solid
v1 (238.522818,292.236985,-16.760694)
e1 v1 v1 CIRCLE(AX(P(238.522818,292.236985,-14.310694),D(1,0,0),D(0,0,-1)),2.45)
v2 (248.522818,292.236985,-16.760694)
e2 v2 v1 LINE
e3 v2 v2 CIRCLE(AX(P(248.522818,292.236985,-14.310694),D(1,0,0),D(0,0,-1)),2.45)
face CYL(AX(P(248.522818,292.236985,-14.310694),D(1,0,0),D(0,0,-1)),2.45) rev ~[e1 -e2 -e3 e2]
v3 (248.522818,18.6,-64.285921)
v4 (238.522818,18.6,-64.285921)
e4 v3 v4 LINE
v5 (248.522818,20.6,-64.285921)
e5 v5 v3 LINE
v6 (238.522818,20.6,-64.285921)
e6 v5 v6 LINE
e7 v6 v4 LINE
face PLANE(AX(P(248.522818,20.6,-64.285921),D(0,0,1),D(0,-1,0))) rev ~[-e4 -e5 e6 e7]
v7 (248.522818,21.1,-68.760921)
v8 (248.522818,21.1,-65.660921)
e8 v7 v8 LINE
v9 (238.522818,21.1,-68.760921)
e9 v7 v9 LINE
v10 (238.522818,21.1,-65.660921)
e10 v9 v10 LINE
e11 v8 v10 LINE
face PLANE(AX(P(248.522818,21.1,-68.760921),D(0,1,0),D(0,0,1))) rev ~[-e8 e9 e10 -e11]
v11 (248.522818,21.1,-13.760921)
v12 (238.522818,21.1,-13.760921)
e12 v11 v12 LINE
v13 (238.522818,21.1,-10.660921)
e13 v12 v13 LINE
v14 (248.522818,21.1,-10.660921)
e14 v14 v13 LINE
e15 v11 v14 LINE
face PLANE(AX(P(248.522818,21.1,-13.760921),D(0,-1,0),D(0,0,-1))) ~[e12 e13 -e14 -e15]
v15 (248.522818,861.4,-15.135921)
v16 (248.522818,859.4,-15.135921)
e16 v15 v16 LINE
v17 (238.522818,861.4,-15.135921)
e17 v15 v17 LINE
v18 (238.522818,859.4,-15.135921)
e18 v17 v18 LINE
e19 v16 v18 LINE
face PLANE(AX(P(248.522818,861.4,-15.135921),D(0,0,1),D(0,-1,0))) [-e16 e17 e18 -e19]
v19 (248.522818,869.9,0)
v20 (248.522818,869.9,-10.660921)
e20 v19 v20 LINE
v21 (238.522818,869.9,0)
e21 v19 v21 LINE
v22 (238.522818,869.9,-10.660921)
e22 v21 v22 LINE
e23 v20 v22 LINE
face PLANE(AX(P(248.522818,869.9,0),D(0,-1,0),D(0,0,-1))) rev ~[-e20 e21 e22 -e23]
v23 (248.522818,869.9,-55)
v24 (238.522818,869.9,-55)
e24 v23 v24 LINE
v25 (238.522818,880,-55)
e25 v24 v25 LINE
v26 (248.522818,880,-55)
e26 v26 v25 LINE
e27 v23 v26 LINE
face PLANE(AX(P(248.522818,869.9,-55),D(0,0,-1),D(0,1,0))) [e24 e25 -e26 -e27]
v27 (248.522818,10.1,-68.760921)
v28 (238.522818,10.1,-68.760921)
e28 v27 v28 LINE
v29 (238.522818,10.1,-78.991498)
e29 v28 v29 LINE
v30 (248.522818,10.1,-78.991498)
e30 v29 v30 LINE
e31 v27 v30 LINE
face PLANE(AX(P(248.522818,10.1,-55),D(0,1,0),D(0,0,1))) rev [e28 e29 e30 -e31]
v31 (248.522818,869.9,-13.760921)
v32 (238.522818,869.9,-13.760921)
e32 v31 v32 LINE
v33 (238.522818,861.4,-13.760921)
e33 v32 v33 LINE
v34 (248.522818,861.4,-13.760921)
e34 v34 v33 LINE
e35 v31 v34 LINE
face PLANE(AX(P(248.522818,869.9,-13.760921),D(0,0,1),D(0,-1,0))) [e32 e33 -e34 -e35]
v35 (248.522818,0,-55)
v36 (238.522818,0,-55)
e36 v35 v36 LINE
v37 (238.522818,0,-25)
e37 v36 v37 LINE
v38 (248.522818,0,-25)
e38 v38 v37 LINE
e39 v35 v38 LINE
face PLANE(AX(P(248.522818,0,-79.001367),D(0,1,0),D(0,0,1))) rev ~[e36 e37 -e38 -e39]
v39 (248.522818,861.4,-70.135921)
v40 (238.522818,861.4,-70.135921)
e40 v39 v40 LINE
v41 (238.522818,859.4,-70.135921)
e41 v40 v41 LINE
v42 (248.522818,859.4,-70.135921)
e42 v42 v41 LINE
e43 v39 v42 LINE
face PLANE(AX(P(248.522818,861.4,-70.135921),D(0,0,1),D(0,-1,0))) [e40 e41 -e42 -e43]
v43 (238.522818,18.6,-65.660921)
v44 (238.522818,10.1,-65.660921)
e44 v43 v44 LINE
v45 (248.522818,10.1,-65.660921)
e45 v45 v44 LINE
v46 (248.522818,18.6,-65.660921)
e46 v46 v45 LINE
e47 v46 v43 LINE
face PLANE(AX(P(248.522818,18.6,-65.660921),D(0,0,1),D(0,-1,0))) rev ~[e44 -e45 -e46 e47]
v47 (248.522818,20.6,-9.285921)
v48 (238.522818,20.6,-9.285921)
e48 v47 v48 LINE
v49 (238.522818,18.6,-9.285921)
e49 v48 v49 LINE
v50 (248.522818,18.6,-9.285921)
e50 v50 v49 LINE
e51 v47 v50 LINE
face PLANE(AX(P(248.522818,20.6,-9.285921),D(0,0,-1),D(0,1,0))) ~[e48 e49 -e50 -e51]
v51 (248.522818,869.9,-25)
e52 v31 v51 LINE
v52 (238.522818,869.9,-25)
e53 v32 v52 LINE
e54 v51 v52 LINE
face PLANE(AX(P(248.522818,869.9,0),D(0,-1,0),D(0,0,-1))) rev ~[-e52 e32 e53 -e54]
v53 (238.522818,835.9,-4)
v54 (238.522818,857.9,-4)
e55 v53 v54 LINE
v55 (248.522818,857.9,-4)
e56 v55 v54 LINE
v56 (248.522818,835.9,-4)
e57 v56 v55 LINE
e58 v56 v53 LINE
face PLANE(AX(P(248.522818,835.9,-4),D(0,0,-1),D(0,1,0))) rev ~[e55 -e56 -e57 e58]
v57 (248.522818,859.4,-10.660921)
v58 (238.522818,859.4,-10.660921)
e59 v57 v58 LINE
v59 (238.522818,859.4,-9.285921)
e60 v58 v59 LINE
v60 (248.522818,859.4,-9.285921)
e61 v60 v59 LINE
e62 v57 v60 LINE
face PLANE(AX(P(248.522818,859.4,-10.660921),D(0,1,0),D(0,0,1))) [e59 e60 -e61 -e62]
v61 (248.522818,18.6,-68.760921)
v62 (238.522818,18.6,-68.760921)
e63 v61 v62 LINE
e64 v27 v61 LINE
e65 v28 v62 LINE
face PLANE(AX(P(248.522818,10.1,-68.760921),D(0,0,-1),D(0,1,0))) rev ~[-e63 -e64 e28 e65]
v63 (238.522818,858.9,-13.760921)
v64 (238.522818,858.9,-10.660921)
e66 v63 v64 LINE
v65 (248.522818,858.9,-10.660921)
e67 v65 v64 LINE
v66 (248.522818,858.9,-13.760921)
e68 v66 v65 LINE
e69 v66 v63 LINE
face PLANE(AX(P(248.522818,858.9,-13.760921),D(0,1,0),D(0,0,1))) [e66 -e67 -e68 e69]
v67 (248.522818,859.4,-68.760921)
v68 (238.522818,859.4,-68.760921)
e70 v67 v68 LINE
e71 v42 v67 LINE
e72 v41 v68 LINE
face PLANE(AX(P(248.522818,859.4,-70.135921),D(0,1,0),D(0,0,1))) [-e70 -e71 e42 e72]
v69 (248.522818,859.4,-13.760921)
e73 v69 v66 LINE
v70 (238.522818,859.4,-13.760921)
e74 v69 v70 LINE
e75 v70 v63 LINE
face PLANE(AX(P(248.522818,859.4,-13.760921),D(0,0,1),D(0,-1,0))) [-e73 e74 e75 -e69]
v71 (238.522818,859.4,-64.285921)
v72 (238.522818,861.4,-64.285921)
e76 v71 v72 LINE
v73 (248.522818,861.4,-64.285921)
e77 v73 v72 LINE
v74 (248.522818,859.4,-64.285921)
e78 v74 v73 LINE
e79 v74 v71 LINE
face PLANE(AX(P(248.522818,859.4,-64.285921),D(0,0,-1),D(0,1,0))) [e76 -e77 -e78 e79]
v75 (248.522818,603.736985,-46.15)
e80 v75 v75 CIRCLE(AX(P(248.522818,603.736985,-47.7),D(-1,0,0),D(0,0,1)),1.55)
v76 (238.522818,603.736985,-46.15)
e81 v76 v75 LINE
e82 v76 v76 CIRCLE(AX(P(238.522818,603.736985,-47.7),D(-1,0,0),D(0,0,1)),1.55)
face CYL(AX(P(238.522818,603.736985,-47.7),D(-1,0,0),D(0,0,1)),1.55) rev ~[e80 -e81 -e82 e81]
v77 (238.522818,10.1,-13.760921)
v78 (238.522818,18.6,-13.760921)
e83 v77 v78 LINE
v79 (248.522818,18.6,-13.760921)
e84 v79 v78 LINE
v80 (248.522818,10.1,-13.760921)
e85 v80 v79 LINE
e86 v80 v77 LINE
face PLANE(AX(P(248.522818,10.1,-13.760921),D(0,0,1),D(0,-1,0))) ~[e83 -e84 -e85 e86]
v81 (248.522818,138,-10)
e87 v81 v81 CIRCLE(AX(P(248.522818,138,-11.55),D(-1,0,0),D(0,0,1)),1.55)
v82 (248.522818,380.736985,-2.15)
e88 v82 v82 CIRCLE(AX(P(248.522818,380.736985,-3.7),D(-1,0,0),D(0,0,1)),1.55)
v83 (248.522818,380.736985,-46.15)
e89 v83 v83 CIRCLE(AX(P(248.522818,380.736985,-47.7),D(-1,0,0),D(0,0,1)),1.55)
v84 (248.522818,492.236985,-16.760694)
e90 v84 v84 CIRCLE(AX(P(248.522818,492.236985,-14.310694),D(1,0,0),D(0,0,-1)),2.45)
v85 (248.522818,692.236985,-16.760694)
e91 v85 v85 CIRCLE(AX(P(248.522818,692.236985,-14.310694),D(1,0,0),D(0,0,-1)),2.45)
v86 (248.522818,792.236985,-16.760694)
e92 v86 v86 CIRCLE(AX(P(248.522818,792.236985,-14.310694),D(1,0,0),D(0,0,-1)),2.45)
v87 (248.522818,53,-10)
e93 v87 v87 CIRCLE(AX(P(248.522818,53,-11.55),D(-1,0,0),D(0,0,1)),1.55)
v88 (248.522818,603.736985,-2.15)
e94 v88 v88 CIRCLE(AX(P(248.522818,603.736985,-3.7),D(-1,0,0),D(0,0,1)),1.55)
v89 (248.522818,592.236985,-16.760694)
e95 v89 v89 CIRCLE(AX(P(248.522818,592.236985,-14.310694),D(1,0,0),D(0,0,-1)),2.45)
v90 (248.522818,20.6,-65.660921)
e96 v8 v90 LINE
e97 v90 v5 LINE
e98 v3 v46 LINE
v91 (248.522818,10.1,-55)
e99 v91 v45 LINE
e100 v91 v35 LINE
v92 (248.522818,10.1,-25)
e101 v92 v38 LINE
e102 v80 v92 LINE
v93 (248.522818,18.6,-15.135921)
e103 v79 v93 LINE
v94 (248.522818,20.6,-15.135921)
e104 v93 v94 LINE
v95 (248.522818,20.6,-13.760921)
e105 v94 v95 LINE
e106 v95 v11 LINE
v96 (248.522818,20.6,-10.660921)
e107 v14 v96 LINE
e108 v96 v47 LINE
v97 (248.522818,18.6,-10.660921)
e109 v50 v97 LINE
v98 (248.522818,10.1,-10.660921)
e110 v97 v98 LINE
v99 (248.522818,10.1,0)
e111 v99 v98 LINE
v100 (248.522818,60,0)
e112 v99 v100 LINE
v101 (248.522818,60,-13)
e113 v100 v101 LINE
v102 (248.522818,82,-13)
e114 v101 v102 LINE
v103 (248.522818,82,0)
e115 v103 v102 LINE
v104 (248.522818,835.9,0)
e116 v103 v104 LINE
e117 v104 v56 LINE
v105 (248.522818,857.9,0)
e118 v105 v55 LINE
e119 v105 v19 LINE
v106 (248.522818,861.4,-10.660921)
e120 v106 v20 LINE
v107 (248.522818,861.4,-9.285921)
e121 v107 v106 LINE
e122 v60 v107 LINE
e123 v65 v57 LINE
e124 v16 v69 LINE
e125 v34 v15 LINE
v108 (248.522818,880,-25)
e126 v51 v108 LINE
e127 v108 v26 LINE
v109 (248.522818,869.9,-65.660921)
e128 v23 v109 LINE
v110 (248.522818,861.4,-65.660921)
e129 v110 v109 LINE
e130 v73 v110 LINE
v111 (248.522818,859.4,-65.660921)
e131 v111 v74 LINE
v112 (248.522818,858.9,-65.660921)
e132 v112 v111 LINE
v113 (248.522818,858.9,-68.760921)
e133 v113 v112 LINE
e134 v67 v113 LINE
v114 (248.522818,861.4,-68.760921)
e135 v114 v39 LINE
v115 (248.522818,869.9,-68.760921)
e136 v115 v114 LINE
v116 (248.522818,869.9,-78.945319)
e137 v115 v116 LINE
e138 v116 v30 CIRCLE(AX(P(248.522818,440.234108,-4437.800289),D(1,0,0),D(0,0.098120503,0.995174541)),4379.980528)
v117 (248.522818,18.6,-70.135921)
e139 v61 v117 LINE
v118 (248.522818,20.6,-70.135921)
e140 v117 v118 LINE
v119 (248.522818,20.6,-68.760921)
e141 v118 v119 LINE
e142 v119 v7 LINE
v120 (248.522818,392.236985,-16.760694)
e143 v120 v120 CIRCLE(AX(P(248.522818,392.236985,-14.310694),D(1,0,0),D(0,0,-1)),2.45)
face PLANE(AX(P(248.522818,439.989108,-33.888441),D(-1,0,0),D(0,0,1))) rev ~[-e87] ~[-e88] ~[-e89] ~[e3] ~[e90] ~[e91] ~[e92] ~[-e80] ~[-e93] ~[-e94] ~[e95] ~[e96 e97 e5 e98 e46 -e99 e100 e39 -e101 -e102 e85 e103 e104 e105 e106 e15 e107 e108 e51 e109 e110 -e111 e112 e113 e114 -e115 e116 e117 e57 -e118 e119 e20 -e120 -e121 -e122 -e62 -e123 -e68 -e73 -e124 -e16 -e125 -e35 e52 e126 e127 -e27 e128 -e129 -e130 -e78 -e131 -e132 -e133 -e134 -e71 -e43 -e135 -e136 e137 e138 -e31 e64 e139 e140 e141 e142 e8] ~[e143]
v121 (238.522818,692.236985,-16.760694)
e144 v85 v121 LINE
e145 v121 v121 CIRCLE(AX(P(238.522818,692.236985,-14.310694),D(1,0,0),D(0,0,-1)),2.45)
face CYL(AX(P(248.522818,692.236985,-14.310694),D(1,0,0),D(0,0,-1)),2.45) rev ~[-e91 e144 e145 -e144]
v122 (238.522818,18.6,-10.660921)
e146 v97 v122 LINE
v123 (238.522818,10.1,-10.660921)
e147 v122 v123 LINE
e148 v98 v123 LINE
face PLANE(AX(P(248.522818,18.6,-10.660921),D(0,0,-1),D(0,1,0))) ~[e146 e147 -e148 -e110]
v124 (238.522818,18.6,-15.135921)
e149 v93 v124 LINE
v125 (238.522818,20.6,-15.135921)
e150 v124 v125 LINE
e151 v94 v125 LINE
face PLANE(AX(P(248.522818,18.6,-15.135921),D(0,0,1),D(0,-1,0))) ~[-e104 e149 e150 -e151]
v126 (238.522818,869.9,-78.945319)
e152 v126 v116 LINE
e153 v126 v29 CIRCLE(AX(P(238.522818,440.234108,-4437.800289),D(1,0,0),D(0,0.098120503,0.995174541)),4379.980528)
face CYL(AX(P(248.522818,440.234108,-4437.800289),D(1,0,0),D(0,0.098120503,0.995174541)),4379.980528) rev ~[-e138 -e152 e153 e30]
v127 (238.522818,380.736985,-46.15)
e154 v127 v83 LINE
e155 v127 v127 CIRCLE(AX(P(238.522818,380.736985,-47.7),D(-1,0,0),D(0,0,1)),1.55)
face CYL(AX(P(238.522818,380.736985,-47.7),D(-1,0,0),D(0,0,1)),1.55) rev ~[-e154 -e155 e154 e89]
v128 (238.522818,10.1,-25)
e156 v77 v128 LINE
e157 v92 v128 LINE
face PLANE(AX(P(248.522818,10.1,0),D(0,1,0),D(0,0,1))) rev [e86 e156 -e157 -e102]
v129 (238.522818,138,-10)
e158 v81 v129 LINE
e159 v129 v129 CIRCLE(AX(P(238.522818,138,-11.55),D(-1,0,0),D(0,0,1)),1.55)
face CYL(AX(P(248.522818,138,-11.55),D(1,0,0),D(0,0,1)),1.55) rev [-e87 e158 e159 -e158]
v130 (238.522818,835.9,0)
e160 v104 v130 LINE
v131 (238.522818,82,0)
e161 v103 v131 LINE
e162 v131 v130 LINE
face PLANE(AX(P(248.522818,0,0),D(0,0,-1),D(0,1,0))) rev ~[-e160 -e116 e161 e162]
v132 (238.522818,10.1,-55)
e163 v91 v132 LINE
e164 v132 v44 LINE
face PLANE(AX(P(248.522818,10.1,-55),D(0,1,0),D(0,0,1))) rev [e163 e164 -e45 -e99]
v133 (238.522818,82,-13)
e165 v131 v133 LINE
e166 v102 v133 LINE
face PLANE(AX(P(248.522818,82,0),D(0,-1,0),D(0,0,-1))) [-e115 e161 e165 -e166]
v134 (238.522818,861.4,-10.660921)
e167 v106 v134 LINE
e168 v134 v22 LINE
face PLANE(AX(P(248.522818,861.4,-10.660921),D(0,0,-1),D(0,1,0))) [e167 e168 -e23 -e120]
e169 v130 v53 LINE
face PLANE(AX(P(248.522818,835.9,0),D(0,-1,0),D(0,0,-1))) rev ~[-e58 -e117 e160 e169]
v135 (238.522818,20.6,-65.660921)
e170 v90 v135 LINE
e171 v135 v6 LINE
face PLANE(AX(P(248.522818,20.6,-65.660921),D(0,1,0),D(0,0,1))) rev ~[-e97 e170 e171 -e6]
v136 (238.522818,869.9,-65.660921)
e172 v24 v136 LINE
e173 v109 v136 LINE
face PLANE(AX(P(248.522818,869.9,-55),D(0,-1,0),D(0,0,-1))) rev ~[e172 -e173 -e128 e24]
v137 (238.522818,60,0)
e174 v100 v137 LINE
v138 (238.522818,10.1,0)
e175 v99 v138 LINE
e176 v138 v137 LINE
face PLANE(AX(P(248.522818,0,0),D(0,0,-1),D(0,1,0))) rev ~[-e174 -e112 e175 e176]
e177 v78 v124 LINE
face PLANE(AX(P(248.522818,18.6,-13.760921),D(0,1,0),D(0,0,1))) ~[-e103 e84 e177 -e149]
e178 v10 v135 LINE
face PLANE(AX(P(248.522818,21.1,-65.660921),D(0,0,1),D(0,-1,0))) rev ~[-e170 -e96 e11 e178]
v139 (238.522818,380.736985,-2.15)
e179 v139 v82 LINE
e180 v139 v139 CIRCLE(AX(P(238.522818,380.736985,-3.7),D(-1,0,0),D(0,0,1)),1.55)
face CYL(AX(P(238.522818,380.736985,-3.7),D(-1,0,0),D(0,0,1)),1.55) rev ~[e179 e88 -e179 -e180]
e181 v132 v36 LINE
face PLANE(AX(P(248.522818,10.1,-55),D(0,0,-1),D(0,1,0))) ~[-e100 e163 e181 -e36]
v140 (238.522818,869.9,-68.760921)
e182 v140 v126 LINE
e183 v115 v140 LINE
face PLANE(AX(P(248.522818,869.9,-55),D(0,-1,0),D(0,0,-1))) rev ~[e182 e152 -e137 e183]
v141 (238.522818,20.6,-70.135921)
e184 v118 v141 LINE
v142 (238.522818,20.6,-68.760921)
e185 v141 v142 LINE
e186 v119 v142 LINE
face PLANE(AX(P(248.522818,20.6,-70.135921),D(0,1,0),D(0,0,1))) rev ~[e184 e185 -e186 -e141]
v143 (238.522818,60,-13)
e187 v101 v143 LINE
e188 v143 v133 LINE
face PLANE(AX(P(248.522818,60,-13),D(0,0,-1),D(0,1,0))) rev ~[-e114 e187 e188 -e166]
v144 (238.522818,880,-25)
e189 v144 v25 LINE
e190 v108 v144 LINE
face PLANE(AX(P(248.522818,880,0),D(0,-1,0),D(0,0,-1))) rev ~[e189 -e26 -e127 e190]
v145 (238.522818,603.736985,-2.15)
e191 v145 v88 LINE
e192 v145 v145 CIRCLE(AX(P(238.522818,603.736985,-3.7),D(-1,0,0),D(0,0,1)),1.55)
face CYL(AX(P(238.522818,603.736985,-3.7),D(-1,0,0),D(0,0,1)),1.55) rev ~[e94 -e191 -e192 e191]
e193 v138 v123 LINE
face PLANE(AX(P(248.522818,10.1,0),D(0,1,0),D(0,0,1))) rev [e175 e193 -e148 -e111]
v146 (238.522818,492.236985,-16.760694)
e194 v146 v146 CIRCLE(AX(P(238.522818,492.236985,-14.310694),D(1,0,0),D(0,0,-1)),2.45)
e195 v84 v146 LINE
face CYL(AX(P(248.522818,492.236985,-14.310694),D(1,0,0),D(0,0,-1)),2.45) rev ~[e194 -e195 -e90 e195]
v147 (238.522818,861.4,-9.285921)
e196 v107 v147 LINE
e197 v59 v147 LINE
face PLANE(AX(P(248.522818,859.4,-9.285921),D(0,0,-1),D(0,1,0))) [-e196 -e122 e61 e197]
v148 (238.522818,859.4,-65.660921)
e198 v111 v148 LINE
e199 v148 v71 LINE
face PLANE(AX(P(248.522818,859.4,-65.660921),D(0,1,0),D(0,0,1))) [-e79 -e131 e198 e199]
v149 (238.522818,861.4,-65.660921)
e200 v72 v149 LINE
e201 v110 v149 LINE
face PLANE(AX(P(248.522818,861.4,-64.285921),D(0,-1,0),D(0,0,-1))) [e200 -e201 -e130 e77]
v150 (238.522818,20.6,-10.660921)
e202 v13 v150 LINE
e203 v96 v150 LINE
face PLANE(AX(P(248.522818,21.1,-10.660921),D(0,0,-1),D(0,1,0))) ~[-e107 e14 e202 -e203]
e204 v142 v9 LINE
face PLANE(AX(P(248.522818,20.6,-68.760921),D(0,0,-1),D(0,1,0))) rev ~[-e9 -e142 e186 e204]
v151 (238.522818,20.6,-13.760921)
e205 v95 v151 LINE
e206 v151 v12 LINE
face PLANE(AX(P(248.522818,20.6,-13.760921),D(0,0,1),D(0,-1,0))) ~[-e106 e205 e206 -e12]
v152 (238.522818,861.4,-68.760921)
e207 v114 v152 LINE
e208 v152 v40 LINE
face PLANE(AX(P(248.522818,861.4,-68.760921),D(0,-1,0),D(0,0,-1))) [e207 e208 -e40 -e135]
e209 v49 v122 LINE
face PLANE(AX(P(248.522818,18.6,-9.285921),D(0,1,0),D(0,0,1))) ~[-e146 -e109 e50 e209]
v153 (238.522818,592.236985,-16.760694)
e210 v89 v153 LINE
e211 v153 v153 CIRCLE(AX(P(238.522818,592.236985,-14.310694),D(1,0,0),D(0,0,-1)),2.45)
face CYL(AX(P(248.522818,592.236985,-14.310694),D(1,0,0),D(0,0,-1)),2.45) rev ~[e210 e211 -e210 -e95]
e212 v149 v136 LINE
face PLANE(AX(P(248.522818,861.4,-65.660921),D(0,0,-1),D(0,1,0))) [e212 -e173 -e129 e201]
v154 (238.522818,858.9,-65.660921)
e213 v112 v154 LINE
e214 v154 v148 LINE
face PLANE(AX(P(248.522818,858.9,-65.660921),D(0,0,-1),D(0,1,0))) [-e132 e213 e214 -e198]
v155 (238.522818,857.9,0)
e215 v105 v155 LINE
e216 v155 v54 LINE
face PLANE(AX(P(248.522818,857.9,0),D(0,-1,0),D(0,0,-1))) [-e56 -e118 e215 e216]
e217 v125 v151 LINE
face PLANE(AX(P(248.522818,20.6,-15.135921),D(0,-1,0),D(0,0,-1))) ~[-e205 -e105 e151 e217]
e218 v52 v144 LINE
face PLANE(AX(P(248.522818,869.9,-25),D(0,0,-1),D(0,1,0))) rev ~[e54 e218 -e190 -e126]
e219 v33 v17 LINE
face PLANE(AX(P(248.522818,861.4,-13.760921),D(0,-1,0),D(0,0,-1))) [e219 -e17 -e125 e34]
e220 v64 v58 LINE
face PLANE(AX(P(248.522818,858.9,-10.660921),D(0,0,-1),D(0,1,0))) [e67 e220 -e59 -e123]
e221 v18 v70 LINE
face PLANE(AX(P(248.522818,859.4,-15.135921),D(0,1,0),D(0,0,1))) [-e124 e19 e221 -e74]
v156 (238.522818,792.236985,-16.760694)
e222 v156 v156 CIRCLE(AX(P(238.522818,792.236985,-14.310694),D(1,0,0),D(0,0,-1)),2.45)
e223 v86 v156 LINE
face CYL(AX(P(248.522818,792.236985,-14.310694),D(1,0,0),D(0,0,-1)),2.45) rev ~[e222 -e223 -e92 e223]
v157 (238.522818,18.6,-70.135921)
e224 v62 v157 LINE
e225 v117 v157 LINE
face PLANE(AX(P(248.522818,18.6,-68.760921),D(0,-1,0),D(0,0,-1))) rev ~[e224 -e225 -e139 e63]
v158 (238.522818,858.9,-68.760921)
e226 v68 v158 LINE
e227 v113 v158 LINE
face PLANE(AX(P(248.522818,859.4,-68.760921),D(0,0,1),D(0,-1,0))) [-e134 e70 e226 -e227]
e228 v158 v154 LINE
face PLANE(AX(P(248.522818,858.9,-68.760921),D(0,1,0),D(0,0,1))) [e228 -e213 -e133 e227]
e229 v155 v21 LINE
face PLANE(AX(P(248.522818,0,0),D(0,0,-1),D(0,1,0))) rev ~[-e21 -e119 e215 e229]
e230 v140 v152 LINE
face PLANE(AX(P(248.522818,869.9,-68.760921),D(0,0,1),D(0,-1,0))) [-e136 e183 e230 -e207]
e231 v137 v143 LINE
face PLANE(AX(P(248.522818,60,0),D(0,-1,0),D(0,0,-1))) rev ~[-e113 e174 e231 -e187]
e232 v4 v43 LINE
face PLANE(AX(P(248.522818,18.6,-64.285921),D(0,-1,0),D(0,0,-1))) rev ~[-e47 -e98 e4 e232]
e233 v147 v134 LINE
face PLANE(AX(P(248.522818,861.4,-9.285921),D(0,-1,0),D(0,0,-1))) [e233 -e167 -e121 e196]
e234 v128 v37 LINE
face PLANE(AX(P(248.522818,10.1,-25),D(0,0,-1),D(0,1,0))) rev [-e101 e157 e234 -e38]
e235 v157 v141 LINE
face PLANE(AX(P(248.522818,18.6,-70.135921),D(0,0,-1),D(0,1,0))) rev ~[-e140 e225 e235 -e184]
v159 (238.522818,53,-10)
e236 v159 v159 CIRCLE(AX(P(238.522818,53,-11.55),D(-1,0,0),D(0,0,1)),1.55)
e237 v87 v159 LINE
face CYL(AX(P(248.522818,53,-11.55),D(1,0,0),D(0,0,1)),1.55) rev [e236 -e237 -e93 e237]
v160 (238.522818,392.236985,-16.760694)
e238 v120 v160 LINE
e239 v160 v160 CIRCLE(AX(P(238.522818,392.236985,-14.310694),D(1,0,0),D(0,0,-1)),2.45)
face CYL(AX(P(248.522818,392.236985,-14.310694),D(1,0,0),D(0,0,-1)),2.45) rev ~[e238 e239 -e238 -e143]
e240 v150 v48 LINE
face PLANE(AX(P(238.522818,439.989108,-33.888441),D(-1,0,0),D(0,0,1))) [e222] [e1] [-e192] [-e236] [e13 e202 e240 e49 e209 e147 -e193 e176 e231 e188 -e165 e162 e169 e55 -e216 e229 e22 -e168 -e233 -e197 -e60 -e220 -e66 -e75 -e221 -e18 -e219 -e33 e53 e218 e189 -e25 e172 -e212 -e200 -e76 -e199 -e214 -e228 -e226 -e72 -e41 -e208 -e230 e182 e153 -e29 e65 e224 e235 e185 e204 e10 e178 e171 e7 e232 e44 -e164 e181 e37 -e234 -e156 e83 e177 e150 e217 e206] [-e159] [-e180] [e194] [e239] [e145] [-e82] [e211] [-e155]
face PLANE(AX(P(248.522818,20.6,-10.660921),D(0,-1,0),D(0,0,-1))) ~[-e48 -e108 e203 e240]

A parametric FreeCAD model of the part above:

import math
import FreeCAD as App
import Part
import Sketcher
from FreeCAD import Vector

doc = App.newDocument("Part")
params = doc.addObject("Spreadsheet::Sheet", "Params")
for row, (alias, value) in enumerate([
    ("sketch1_width", "880 mm"),
    ("sketch1_width2", "10 mm"),
    ("pad1_length", "10 mm"),
    ("sketch2_height", "30 mm"),
    ("sketch2_height2", "25 mm"),
    ("sketch2_width", "10.1 mm"),
    ("pocket1_length", "10 mm"),
    ("sketch3_width", "2 mm"),
    ("sketch3_width2", "8.5 mm"),
    ("sketch3_width3", "0.5 mm"),
    ("sketch3_height", "3.1 mm"),
    ("pocket2_length", "10 mm"),
    ("linearpattern_pitch", "55 mm"),
    ("sketch4_diameter", "3.1 mm"),
    ("pocket3_length", "10 mm"),
    ("sketch5_diameter", "4.9 mm"),
    ("pocket4_length", "10 mm"),
    ("linearpattern2_pitch", "100 mm"),
    ("sketch6_width", "22 mm"),
    ("sketch6_height", "13 mm"),
    ("pocket5_length", "10 mm"),
    ("sketch7_width", "22 mm"),
    ("sketch7_height", "4 mm"),
    ("pocket6_length", "10 mm"),
    ("sketch8_width", "2 mm"),
    ("sketch8_width2", "8.5 mm"),
    ("sketch8_width3", "0.5 mm"),
    ("sketch8_height", "3.1 mm"),
    ("pocket7_length", "10 mm"),
    ("sketch9_diameter", "3.1 mm"),
    ("pocket8_length", "10 mm"),
    ("linearpattern3_pitch", "223 mm"),
], start=1):
    params.set(f"A{row}", alias)
    params.set(f"B{row}", "=" + value)
    params.setAlias(f"B{row}", alias)

body = doc.addObject("PartDesign::Body", "Body")

sketch1 = body.newObject("Sketcher::SketchObject", "Sketch")
sketch1.AttachmentSupport = (doc.getObject("YZ_Plane"), [""])
sketch1.MapMode = "FlatFace"
sketch1.AttachmentOffset = App.Placement(Vector(0, 0, 248.522818), App.Rotation())
sketch1.addGeometry(Part.LineSegment(Vector(0, -79, 0), Vector(0, 0, 0)), False)
sketch1.addGeometry(Part.LineSegment(Vector(0, 0, 0), Vector(880, 0, 0)), False)
sketch1.addGeometry(Part.LineSegment(Vector(880, 0, 0), Vector(880, -79, 0)), False)
sketch1.addGeometry(Part.LineSegment(Vector(880, -79, 0), Vector(870, -79, 0)), False)
sketch1.addGeometry(Part.ArcOfCircle(Part.Circle(Vector(440, -4438, 0), Vector(0, 0, 1), 4380), math.radians(84.37), math.radians(95.64)), False)
sketch1.addGeometry(Part.LineSegment(Vector(10, -79, 0), Vector(0, -79, 0)), False)
sketch1.addConstraint(Sketcher.Constraint("Coincident", 0, 2, 1, 1))
sketch1.addConstraint(Sketcher.Constraint("Coincident", 1, 2, 2, 1))
sketch1.addConstraint(Sketcher.Constraint("Coincident", 2, 2, 3, 1))
sketch1.addConstraint(Sketcher.Constraint("Coincident", 3, 2, 4, 1))
sketch1.addConstraint(Sketcher.Constraint("Coincident", 4, 2, 5, 1))
sketch1.addConstraint(Sketcher.Constraint("Coincident", 5, 2, 0, 1))
sketch1.addConstraint(Sketcher.Constraint("Vertical", 0))
sketch1.addConstraint(Sketcher.Constraint("Horizontal", 1))
sketch1.addConstraint(Sketcher.Constraint("Vertical", 2))
sketch1.addConstraint(Sketcher.Constraint("Horizontal", 3))
sketch1.addConstraint(Sketcher.Constraint("Horizontal", 5))
sketch1.addConstraint(Sketcher.Constraint("Coincident", 0, 2, -1, 1))
sketch1.addConstraint(Sketcher.Constraint("Equal", 3, 5))
sketch1.addConstraint(Sketcher.Constraint("DistanceX", 1, 1, 1, 2, 880.0))
sketch1.addConstraint(Sketcher.Constraint("DistanceX", 3, 2, 3, 1, 10.0))
sketch1.addConstraint(Sketcher.Constraint("Radius", 4, 4379.980528))
sketch1.addConstraint(Sketcher.Constraint("DistanceY", 0, 1, 0, 2, 79.001367))
sketch1.addConstraint(Sketcher.Constraint("DistanceY", 2, 2, 2, 1, 78.955177))
sketch1.setExpression("Constraints[13]", "Params.sketch1_width")
sketch1.setExpression("Constraints[14]", "Params.sketch1_width2")
pad1 = body.newObject("PartDesign::Pad", "Pad")
pad1.Profile = sketch1
pad1.setExpression("Length", "Params.pad1_length")
pad1.Reversed = True

sketch2 = body.newObject("Sketcher::SketchObject", "Sketch001")
sketch2.AttachmentSupport = (doc.getObject("YZ_Plane"), [""])
sketch2.MapMode = "FlatFace"
sketch2.AttachmentOffset = App.Placement(Vector(0, 0, 248.522818), App.Rotation())
sketch2.addGeometry(Part.LineSegment(Vector(880, -55, 0), Vector(870, -55, 0)), False)
sketch2.addGeometry(Part.LineSegment(Vector(870, -55, 0), Vector(870, -85, 0)), False)
sketch2.addGeometry(Part.LineSegment(Vector(870, -85, 0), Vector(880, -85, 0)), False)
sketch2.addGeometry(Part.LineSegment(Vector(880, -85, 0), Vector(880, -55, 0)), False)
sketch2.addGeometry(Part.LineSegment(Vector(880, 0, 0), Vector(870, 0, 0)), False)
sketch2.addGeometry(Part.LineSegment(Vector(870, 0, 0), Vector(870, -25, 0)), False)
sketch2.addGeometry(Part.LineSegment(Vector(870, -25, 0), Vector(880, -25, 0)), False)
sketch2.addGeometry(Part.LineSegment(Vector(880, -25, 0), Vector(880, 0, 0)), False)
sketch2.addConstraint(Sketcher.Constraint("Coincident", 0, 2, 1, 1))
sketch2.addConstraint(Sketcher.Constraint("Coincident", 1, 2, 2, 1))
sketch2.addConstraint(Sketcher.Constraint("Coincident", 2, 2, 3, 1))
sketch2.addConstraint(Sketcher.Constraint("Coincident", 3, 2, 0, 1))
sketch2.addConstraint(Sketcher.Constraint("Coincident", 4, 2, 5, 1))
sketch2.addConstraint(Sketcher.Constraint("Coincident", 5, 2, 6, 1))
sketch2.addConstraint(Sketcher.Constraint("Coincident", 6, 2, 7, 1))
sketch2.addConstraint(Sketcher.Constraint("Coincident", 7, 2, 4, 1))
sketch2.addConstraint(Sketcher.Constraint("Horizontal", 0))
sketch2.addConstraint(Sketcher.Constraint("Vertical", 1))
sketch2.addConstraint(Sketcher.Constraint("Horizontal", 2))
sketch2.addConstraint(Sketcher.Constraint("Vertical", 3))
sketch2.addConstraint(Sketcher.Constraint("Horizontal", 4))
sketch2.addConstraint(Sketcher.Constraint("Vertical", 5))
sketch2.addConstraint(Sketcher.Constraint("Horizontal", 6))
sketch2.addConstraint(Sketcher.Constraint("Vertical", 7))
sketch2.addConstraint(Sketcher.Constraint("PointOnObject", 4, 2, -1))
sketch2.addConstraint(Sketcher.Constraint("Vertical", 1, 2, 4, 2))
sketch2.addConstraint(Sketcher.Constraint("Vertical", 3, 2, 6, 2))
sketch2.addConstraint(Sketcher.Constraint("DistanceY", 1, 2, 1, 1, 30.0))
sketch2.addConstraint(Sketcher.Constraint("DistanceY", 5, 2, 5, 1, 25.0))
sketch2.addConstraint(Sketcher.Constraint("DistanceX", 0, 2, 0, 1, 10.1))
sketch2.addConstraint(Sketcher.Constraint("DistanceY", 0, 2, -1, 1, 55.0))
sketch2.addConstraint(Sketcher.Constraint("DistanceX", -1, 1, 2, 2, 880.0))
sketch2.setExpression("Constraints[19]", "Params.sketch2_height")
sketch2.setExpression("Constraints[20]", "Params.sketch2_height2")
sketch2.setExpression("Constraints[21]", "Params.sketch2_width")
pocket1 = body.newObject("PartDesign::Pocket", "Pocket")
pocket1.Profile = sketch2
pocket1.setExpression("Length", "Params.pocket1_length")

sketch3 = body.newObject("Sketcher::SketchObject", "Sketch002")
sketch3.AttachmentSupport = (doc.getObject("YZ_Plane"), [""])
sketch3.MapMode = "FlatFace"
sketch3.AttachmentOffset = App.Placement(Vector(0, 0, 248.522818), App.Rotation())
sketch3.addGeometry(Part.LineSegment(Vector(869.9, -13.8, 0), Vector(869.9, -10.7, 0)), False)
sketch3.addGeometry(Part.LineSegment(Vector(869.9, -10.7, 0), Vector(861.4, -10.7, 0)), False)
sketch3.addGeometry(Part.LineSegment(Vector(861.4, -10.7, 0), Vector(861.4, -9.3, 0)), False)
sketch3.addGeometry(Part.LineSegment(Vector(861.4, -9.3, 0), Vector(859.4, -9.3, 0)), False)
sketch3.addGeometry(Part.LineSegment(Vector(859.4, -9.3, 0), Vector(859.4, -10.7, 0)), False)
sketch3.addGeometry(Part.LineSegment(Vector(859.4, -10.7, 0), Vector(858.9, -10.7, 0)), False)
sketch3.addGeometry(Part.LineSegment(Vector(858.9, -10.7, 0), Vector(858.9, -13.8, 0)), False)
sketch3.addGeometry(Part.LineSegment(Vector(858.9, -13.8, 0), Vector(859.4, -13.8, 0)), False)
sketch3.addGeometry(Part.LineSegment(Vector(859.4, -13.8, 0), Vector(859.4, -15.1, 0)), False)
sketch3.addGeometry(Part.LineSegment(Vector(859.4, -15.1, 0), Vector(861.4, -15.1, 0)), False)
sketch3.addGeometry(Part.LineSegment(Vector(861.4, -15.1, 0), Vector(861.4, -13.8, 0)), False)
sketch3.addGeometry(Part.LineSegment(Vector(861.4, -13.8, 0), Vector(869.9, -13.8, 0)), False)
sketch3.addConstraint(Sketcher.Constraint("Coincident", 0, 2, 1, 1))
sketch3.addConstraint(Sketcher.Constraint("Coincident", 1, 2, 2, 1))
sketch3.addConstraint(Sketcher.Constraint("Coincident", 2, 2, 3, 1))
sketch3.addConstraint(Sketcher.Constraint("Coincident", 3, 2, 4, 1))
sketch3.addConstraint(Sketcher.Constraint("Coincident", 4, 2, 5, 1))
sketch3.addConstraint(Sketcher.Constraint("Coincident", 5, 2, 6, 1))
sketch3.addConstraint(Sketcher.Constraint("Coincident", 6, 2, 7, 1))
sketch3.addConstraint(Sketcher.Constraint("Coincident", 7, 2, 8, 1))
sketch3.addConstraint(Sketcher.Constraint("Coincident", 8, 2, 9, 1))
sketch3.addConstraint(Sketcher.Constraint("Coincident", 9, 2, 10, 1))
sketch3.addConstraint(Sketcher.Constraint("Coincident", 10, 2, 11, 1))
sketch3.addConstraint(Sketcher.Constraint("Coincident", 11, 2, 0, 1))
sketch3.addConstraint(Sketcher.Constraint("Vertical", 0))
sketch3.addConstraint(Sketcher.Constraint("Horizontal", 1))
sketch3.addConstraint(Sketcher.Constraint("Vertical", 2))
sketch3.addConstraint(Sketcher.Constraint("Horizontal", 3))
sketch3.addConstraint(Sketcher.Constraint("Vertical", 4))
sketch3.addConstraint(Sketcher.Constraint("Horizontal", 5))
sketch3.addConstraint(Sketcher.Constraint("Vertical", 6))
sketch3.addConstraint(Sketcher.Constraint("Horizontal", 7))
sketch3.addConstraint(Sketcher.Constraint("Vertical", 8))
sketch3.addConstraint(Sketcher.Constraint("Horizontal", 9))
sketch3.addConstraint(Sketcher.Constraint("Vertical", 10))
sketch3.addConstraint(Sketcher.Constraint("Horizontal", 11))
sketch3.addConstraint(Sketcher.Constraint("Horizontal", 1, 2, 4, 2))
sketch3.addConstraint(Sketcher.Constraint("Horizontal", 7, 2, 10, 2))
sketch3.addConstraint(Sketcher.Constraint("Vertical", 4, 2, 7, 2))
sketch3.addConstraint(Sketcher.Constraint("Vertical", 2, 2, 9, 2))
sketch3.addConstraint(Sketcher.Constraint("Equal", 4, 8))
sketch3.addConstraint(Sketcher.Constraint("DistanceX", 3, 2, 3, 1, 2.0))
sketch3.addConstraint(Sketcher.Constraint("DistanceX", 1, 2, 1, 1, 8.5))
sketch3.addConstraint(Sketcher.Constraint("DistanceX", 5, 2, 5, 1, 0.5))
sketch3.addConstraint(Sketcher.Constraint("DistanceY", 0, 1, 0, 2, 3.1))
sketch3.addConstraint(Sketcher.Constraint("DistanceX", -1, 1, 0, 2, 869.9))
sketch3.addConstraint(Sketcher.Constraint("DistanceY", 2, 1, 2, 2, 1.375))
sketch3.addConstraint(Sketcher.Constraint("DistanceY", 0, 2, -1, 1, 10.660921))
sketch3.setExpression("Constraints[29]", "Params.sketch3_width")
sketch3.setExpression("Constraints[30]", "Params.sketch3_width2")
sketch3.setExpression("Constraints[31]", "Params.sketch3_width3")
sketch3.setExpression("Constraints[32]", "Params.sketch3_height")
pocket2 = body.newObject("PartDesign::Pocket", "Pocket001")
pocket2.Profile = sketch3
pocket2.setExpression("Length", "Params.pocket2_length")
doc.recompute()

linearpattern = body.newObject("PartDesign::LinearPattern", "LinearPattern")
linearpattern.Originals = [pocket2]
linearpattern.Direction = (doc.getObject("Z_Axis"), [""])
linearpattern.Mode = "offset"
linearpattern.setExpression("Offset", "Params.linearpattern_pitch")
linearpattern.Occurrences = 2
linearpattern.Reversed = True
body.Tip = linearpattern

sketch4 = body.newObject("Sketcher::SketchObject", "Sketch003")
sketch4.AttachmentSupport = (doc.getObject("YZ_Plane"), [""])
sketch4.MapMode = "FlatFace"
sketch4.AttachmentOffset = App.Placement(Vector(0, 0, 248.522818), App.Rotation())
sketch4.addGeometry(Part.Circle(Vector(53, -11.6, 0), Vector(0, 0, 1), 1.6), False)
sketch4.addGeometry(Part.Circle(Vector(138, -11.6, 0), Vector(0, 0, 1), 1.6), False)
sketch4.addConstraint(Sketcher.Constraint("Equal", 0, 1))
sketch4.addConstraint(Sketcher.Constraint("Horizontal", 0, 3, 1, 3))
sketch4.addConstraint(Sketcher.Constraint("Diameter", 0, 3.1))
sketch4.addConstraint(Sketcher.Constraint("DistanceX", -1, 1, 0, 3, 53.0))
sketch4.addConstraint(Sketcher.Constraint("DistanceX", -1, 1, 1, 3, 138.0))
sketch4.addConstraint(Sketcher.Constraint("DistanceY", 0, 3, -1, 1, 11.55))
sketch4.setExpression("Constraints[2]", "Params.sketch4_diameter")
pocket3 = body.newObject("PartDesign::Pocket", "Pocket002")
pocket3.Profile = sketch4
pocket3.setExpression("Length", "Params.pocket3_length")

sketch5 = body.newObject("Sketcher::SketchObject", "Sketch004")
sketch5.AttachmentSupport = (doc.getObject("YZ_Plane"), [""])
sketch5.MapMode = "FlatFace"
sketch5.AttachmentOffset = App.Placement(Vector(0, 0, 248.522818), App.Rotation())
sketch5.addGeometry(Part.Circle(Vector(792.2, -14.3, 0), Vector(0, 0, 1), 2.5), False)
sketch5.addConstraint(Sketcher.Constraint("Diameter", 0, 4.9))
sketch5.addConstraint(Sketcher.Constraint("DistanceX", -1, 1, 0, 3, 792.236985))
sketch5.addConstraint(Sketcher.Constraint("DistanceY", 0, 3, -1, 1, 14.310694))
sketch5.setExpression("Constraints[0]", "Params.sketch5_diameter")
pocket4 = body.newObject("PartDesign::Pocket", "Pocket003")
pocket4.Profile = sketch5
pocket4.setExpression("Length", "Params.pocket4_length")
doc.recompute()

linearpattern2 = body.newObject("PartDesign::LinearPattern", "LinearPattern001")
linearpattern2.Originals = [pocket4]
linearpattern2.Direction = (doc.getObject("Y_Axis"), [""])
linearpattern2.Mode = "offset"
linearpattern2.setExpression("Offset", "Params.linearpattern2_pitch")
linearpattern2.Occurrences = 6
linearpattern2.Reversed = True
body.Tip = linearpattern2

sketch6 = body.newObject("Sketcher::SketchObject", "Sketch005")
sketch6.AttachmentSupport = (doc.getObject("YZ_Plane"), [""])
sketch6.MapMode = "FlatFace"
sketch6.AttachmentOffset = App.Placement(Vector(0, 0, 248.522818), App.Rotation())
sketch6.addGeometry(Part.LineSegment(Vector(82, 0, 0), Vector(60, 0, 0)), False)
sketch6.addGeometry(Part.LineSegment(Vector(60, 0, 0), Vector(60, -13, 0)), False)
sketch6.addGeometry(Part.LineSegment(Vector(60, -13, 0), Vector(82, -13, 0)), False)
sketch6.addGeometry(Part.LineSegment(Vector(82, -13, 0), Vector(82, 0, 0)), False)
sketch6.addConstraint(Sketcher.Constraint("Coincident", 0, 2, 1, 1))
sketch6.addConstraint(Sketcher.Constraint("Coincident", 1, 2, 2, 1))
sketch6.addConstraint(Sketcher.Constraint("Coincident", 2, 2, 3, 1))
sketch6.addConstraint(Sketcher.Constraint("Coincident", 3, 2, 0, 1))
sketch6.addConstraint(Sketcher.Constraint("Horizontal", 0))
sketch6.addConstraint(Sketcher.Constraint("Vertical", 1))
sketch6.addConstraint(Sketcher.Constraint("Horizontal", 2))
sketch6.addConstraint(Sketcher.Constraint("Vertical", 3))
sketch6.addConstraint(Sketcher.Constraint("PointOnObject", 0, 2, -1))
sketch6.addConstraint(Sketcher.Constraint("DistanceX", 0, 2, 0, 1, 22.0))
sketch6.addConstraint(Sketcher.Constraint("DistanceY", 1, 2, 1, 1, 13.0))
sketch6.addConstraint(Sketcher.Constraint("DistanceX", -1, 1, 0, 2, 60.0))
sketch6.setExpression("Constraints[9]", "Params.sketch6_width")
sketch6.setExpression("Constraints[10]", "Params.sketch6_height")
pocket5 = body.newObject("PartDesign::Pocket", "Pocket004")
pocket5.Profile = sketch6
pocket5.setExpression("Length", "Params.pocket5_length")

sketch7 = body.newObject("Sketcher::SketchObject", "Sketch006")
sketch7.AttachmentSupport = (doc.getObject("YZ_Plane"), [""])
sketch7.MapMode = "FlatFace"
sketch7.AttachmentOffset = App.Placement(Vector(0, 0, 248.522818), App.Rotation())
sketch7.addGeometry(Part.LineSegment(Vector(857.9, 0, 0), Vector(835.9, 0, 0)), False)
sketch7.addGeometry(Part.LineSegment(Vector(835.9, 0, 0), Vector(835.9, -4, 0)), False)
sketch7.addGeometry(Part.LineSegment(Vector(835.9, -4, 0), Vector(857.9, -4, 0)), False)
sketch7.addGeometry(Part.LineSegment(Vector(857.9, -4, 0), Vector(857.9, 0, 0)), False)
sketch7.addConstraint(Sketcher.Constraint("Coincident", 0, 2, 1, 1))
sketch7.addConstraint(Sketcher.Constraint("Coincident", 1, 2, 2, 1))
sketch7.addConstraint(Sketcher.Constraint("Coincident", 2, 2, 3, 1))
sketch7.addConstraint(Sketcher.Constraint("Coincident", 3, 2, 0, 1))
sketch7.addConstraint(Sketcher.Constraint("Horizontal", 0))
sketch7.addConstraint(Sketcher.Constraint("Vertical", 1))
sketch7.addConstraint(Sketcher.Constraint("Horizontal", 2))
sketch7.addConstraint(Sketcher.Constraint("Vertical", 3))
sketch7.addConstraint(Sketcher.Constraint("PointOnObject", 0, 2, -1))
sketch7.addConstraint(Sketcher.Constraint("DistanceX", 0, 2, 0, 1, 22.0))
sketch7.addConstraint(Sketcher.Constraint("DistanceY", 1, 2, 1, 1, 4.0))
sketch7.addConstraint(Sketcher.Constraint("DistanceX", -1, 1, 0, 2, 835.9))
sketch7.setExpression("Constraints[9]", "Params.sketch7_width")
sketch7.setExpression("Constraints[10]", "Params.sketch7_height")
pocket6 = body.newObject("PartDesign::Pocket", "Pocket005")
pocket6.Profile = sketch7
pocket6.setExpression("Length", "Params.pocket6_length")
doc.recompute()

datumplane = body.newObject("PartDesign::Plane", "DatumPlane")
datumplane.AttachmentSupport = (doc.getObject("XZ_Plane"), [""])
datumplane.MapMode = "FlatFace"
datumplane.AttachmentOffset = App.Placement(Vector(0, 0, -440), App.Rotation())
mirrored = body.newObject("PartDesign::Mirrored", "Mirrored")
mirrored.Originals = [pocket1, pocket2]
mirrored.MirrorPlane = (datumplane, [""])
body.Tip = mirrored

sketch8 = body.newObject("Sketcher::SketchObject", "Sketch007")
sketch8.AttachmentSupport = (doc.getObject("YZ_Plane"), [""])
sketch8.MapMode = "FlatFace"
sketch8.AttachmentOffset = App.Placement(Vector(0, 0, 248.522818), App.Rotation())
sketch8.addGeometry(Part.LineSegment(Vector(10.1, -65.7, 0), Vector(10.1, -68.8, 0)), False)
sketch8.addGeometry(Part.LineSegment(Vector(10.1, -68.8, 0), Vector(18.6, -68.8, 0)), False)
sketch8.addGeometry(Part.LineSegment(Vector(18.6, -68.8, 0), Vector(18.6, -70.1, 0)), False)
sketch8.addGeometry(Part.LineSegment(Vector(18.6, -70.1, 0), Vector(20.6, -70.1, 0)), False)
sketch8.addGeometry(Part.LineSegment(Vector(20.6, -70.1, 0), Vector(20.6, -68.8, 0)), False)
sketch8.addGeometry(Part.LineSegment(Vector(20.6, -68.8, 0), Vector(21.1, -68.8, 0)), False)
sketch8.addGeometry(Part.LineSegment(Vector(21.1, -68.8, 0), Vector(21.1, -65.7, 0)), False)
sketch8.addGeometry(Part.LineSegment(Vector(21.1, -65.7, 0), Vector(20.6, -65.7, 0)), False)
sketch8.addGeometry(Part.LineSegment(Vector(20.6, -65.7, 0), Vector(20.6, -64.3, 0)), False)
sketch8.addGeometry(Part.LineSegment(Vector(20.6, -64.3, 0), Vector(18.6, -64.3, 0)), False)
sketch8.addGeometry(Part.LineSegment(Vector(18.6, -64.3, 0), Vector(18.6, -65.7, 0)), False)
sketch8.addGeometry(Part.LineSegment(Vector(18.6, -65.7, 0), Vector(10.1, -65.7, 0)), False)
sketch8.addConstraint(Sketcher.Constraint("Coincident", 0, 2, 1, 1))
sketch8.addConstraint(Sketcher.Constraint("Coincident", 1, 2, 2, 1))
sketch8.addConstraint(Sketcher.Constraint("Coincident", 2, 2, 3, 1))
sketch8.addConstraint(Sketcher.Constraint("Coincident", 3, 2, 4, 1))
sketch8.addConstraint(Sketcher.Constraint("Coincident", 4, 2, 5, 1))
sketch8.addConstraint(Sketcher.Constraint("Coincident", 5, 2, 6, 1))
sketch8.addConstraint(Sketcher.Constraint("Coincident", 6, 2, 7, 1))
sketch8.addConstraint(Sketcher.Constraint("Coincident", 7, 2, 8, 1))
sketch8.addConstraint(Sketcher.Constraint("Coincident", 8, 2, 9, 1))
sketch8.addConstraint(Sketcher.Constraint("Coincident", 9, 2, 10, 1))
sketch8.addConstraint(Sketcher.Constraint("Coincident", 10, 2, 11, 1))
sketch8.addConstraint(Sketcher.Constraint("Coincident", 11, 2, 0, 1))
sketch8.addConstraint(Sketcher.Constraint("Vertical", 0))
sketch8.addConstraint(Sketcher.Constraint("Horizontal", 1))
sketch8.addConstraint(Sketcher.Constraint("Vertical", 2))
sketch8.addConstraint(Sketcher.Constraint("Horizontal", 3))
sketch8.addConstraint(Sketcher.Constraint("Vertical", 4))
sketch8.addConstraint(Sketcher.Constraint("Horizontal", 5))
sketch8.addConstraint(Sketcher.Constraint("Vertical", 6))
sketch8.addConstraint(Sketcher.Constraint("Horizontal", 7))
sketch8.addConstraint(Sketcher.Constraint("Vertical", 8))
sketch8.addConstraint(Sketcher.Constraint("Horizontal", 9))
sketch8.addConstraint(Sketcher.Constraint("Vertical", 10))
sketch8.addConstraint(Sketcher.Constraint("Horizontal", 11))
sketch8.addConstraint(Sketcher.Constraint("Horizontal", 1, 2, 4, 2))
sketch8.addConstraint(Sketcher.Constraint("Horizontal", 7, 2, 10, 2))
sketch8.addConstraint(Sketcher.Constraint("Vertical", 4, 2, 7, 2))
sketch8.addConstraint(Sketcher.Constraint("Vertical", 2, 2, 9, 2))
sketch8.addConstraint(Sketcher.Constraint("Equal", 4, 8))
sketch8.addConstraint(Sketcher.Constraint("DistanceX", 3, 1, 3, 2, 2.0))
sketch8.addConstraint(Sketcher.Constraint("DistanceX", 1, 1, 1, 2, 8.5))
sketch8.addConstraint(Sketcher.Constraint("DistanceX", 5, 1, 5, 2, 0.5))
sketch8.addConstraint(Sketcher.Constraint("DistanceY", 0, 2, 0, 1, 3.1))
sketch8.addConstraint(Sketcher.Constraint("DistanceX", -1, 1, 0, 2, 10.1))
sketch8.addConstraint(Sketcher.Constraint("DistanceY", 2, 2, 2, 1, 1.375))
sketch8.addConstraint(Sketcher.Constraint("DistanceY", 0, 2, -1, 1, 68.760921))
sketch8.setExpression("Constraints[29]", "Params.sketch8_width")
sketch8.setExpression("Constraints[30]", "Params.sketch8_width2")
sketch8.setExpression("Constraints[31]", "Params.sketch8_width3")
sketch8.setExpression("Constraints[32]", "Params.sketch8_height")
pocket7 = body.newObject("PartDesign::Pocket", "Pocket006")
pocket7.Profile = sketch8
pocket7.setExpression("Length", "Params.pocket7_length")

sketch9 = body.newObject("Sketcher::SketchObject", "Sketch008")
sketch9.AttachmentSupport = (doc.getObject("YZ_Plane"), [""])
sketch9.MapMode = "FlatFace"
sketch9.AttachmentOffset = App.Placement(Vector(0, 0, 238.522818), App.Rotation())
sketch9.addGeometry(Part.Circle(Vector(603.7, -47.7, 0), Vector(0, 0, 1), 1.6), False)
sketch9.addGeometry(Part.Circle(Vector(603.7, -3.7, 0), Vector(0, 0, 1), 1.6), False)
sketch9.addConstraint(Sketcher.Constraint("Equal", 0, 1))
sketch9.addConstraint(Sketcher.Constraint("Vertical", 0, 3, 1, 3))
sketch9.addConstraint(Sketcher.Constraint("Diameter", 0, 3.1))
sketch9.addConstraint(Sketcher.Constraint("DistanceY", 0, 3, 1, 3, 44.0))
sketch9.addConstraint(Sketcher.Constraint("DistanceY", 0, 3, -1, 1, 47.7))
sketch9.addConstraint(Sketcher.Constraint("DistanceX", -1, 1, 0, 3, 603.736985))
sketch9.setExpression("Constraints[2]", "Params.sketch9_diameter")
pocket8 = body.newObject("PartDesign::Pocket", "Pocket007")
pocket8.Profile = sketch9
pocket8.setExpression("Length", "Params.pocket8_length")
pocket8.Reversed = True
doc.recompute()

linearpattern3 = body.newObject("PartDesign::LinearPattern", "LinearPattern002")
linearpattern3.Originals = [pocket8]
linearpattern3.Direction = (doc.getObject("Y_Axis"), [""])
linearpattern3.Mode = "offset"
linearpattern3.setExpression("Offset", "Params.linearpattern3_pitch")
linearpattern3.Occurrences = 2
linearpattern3.Reversed = True
body.Tip = linearpattern3

doc.recompute()
